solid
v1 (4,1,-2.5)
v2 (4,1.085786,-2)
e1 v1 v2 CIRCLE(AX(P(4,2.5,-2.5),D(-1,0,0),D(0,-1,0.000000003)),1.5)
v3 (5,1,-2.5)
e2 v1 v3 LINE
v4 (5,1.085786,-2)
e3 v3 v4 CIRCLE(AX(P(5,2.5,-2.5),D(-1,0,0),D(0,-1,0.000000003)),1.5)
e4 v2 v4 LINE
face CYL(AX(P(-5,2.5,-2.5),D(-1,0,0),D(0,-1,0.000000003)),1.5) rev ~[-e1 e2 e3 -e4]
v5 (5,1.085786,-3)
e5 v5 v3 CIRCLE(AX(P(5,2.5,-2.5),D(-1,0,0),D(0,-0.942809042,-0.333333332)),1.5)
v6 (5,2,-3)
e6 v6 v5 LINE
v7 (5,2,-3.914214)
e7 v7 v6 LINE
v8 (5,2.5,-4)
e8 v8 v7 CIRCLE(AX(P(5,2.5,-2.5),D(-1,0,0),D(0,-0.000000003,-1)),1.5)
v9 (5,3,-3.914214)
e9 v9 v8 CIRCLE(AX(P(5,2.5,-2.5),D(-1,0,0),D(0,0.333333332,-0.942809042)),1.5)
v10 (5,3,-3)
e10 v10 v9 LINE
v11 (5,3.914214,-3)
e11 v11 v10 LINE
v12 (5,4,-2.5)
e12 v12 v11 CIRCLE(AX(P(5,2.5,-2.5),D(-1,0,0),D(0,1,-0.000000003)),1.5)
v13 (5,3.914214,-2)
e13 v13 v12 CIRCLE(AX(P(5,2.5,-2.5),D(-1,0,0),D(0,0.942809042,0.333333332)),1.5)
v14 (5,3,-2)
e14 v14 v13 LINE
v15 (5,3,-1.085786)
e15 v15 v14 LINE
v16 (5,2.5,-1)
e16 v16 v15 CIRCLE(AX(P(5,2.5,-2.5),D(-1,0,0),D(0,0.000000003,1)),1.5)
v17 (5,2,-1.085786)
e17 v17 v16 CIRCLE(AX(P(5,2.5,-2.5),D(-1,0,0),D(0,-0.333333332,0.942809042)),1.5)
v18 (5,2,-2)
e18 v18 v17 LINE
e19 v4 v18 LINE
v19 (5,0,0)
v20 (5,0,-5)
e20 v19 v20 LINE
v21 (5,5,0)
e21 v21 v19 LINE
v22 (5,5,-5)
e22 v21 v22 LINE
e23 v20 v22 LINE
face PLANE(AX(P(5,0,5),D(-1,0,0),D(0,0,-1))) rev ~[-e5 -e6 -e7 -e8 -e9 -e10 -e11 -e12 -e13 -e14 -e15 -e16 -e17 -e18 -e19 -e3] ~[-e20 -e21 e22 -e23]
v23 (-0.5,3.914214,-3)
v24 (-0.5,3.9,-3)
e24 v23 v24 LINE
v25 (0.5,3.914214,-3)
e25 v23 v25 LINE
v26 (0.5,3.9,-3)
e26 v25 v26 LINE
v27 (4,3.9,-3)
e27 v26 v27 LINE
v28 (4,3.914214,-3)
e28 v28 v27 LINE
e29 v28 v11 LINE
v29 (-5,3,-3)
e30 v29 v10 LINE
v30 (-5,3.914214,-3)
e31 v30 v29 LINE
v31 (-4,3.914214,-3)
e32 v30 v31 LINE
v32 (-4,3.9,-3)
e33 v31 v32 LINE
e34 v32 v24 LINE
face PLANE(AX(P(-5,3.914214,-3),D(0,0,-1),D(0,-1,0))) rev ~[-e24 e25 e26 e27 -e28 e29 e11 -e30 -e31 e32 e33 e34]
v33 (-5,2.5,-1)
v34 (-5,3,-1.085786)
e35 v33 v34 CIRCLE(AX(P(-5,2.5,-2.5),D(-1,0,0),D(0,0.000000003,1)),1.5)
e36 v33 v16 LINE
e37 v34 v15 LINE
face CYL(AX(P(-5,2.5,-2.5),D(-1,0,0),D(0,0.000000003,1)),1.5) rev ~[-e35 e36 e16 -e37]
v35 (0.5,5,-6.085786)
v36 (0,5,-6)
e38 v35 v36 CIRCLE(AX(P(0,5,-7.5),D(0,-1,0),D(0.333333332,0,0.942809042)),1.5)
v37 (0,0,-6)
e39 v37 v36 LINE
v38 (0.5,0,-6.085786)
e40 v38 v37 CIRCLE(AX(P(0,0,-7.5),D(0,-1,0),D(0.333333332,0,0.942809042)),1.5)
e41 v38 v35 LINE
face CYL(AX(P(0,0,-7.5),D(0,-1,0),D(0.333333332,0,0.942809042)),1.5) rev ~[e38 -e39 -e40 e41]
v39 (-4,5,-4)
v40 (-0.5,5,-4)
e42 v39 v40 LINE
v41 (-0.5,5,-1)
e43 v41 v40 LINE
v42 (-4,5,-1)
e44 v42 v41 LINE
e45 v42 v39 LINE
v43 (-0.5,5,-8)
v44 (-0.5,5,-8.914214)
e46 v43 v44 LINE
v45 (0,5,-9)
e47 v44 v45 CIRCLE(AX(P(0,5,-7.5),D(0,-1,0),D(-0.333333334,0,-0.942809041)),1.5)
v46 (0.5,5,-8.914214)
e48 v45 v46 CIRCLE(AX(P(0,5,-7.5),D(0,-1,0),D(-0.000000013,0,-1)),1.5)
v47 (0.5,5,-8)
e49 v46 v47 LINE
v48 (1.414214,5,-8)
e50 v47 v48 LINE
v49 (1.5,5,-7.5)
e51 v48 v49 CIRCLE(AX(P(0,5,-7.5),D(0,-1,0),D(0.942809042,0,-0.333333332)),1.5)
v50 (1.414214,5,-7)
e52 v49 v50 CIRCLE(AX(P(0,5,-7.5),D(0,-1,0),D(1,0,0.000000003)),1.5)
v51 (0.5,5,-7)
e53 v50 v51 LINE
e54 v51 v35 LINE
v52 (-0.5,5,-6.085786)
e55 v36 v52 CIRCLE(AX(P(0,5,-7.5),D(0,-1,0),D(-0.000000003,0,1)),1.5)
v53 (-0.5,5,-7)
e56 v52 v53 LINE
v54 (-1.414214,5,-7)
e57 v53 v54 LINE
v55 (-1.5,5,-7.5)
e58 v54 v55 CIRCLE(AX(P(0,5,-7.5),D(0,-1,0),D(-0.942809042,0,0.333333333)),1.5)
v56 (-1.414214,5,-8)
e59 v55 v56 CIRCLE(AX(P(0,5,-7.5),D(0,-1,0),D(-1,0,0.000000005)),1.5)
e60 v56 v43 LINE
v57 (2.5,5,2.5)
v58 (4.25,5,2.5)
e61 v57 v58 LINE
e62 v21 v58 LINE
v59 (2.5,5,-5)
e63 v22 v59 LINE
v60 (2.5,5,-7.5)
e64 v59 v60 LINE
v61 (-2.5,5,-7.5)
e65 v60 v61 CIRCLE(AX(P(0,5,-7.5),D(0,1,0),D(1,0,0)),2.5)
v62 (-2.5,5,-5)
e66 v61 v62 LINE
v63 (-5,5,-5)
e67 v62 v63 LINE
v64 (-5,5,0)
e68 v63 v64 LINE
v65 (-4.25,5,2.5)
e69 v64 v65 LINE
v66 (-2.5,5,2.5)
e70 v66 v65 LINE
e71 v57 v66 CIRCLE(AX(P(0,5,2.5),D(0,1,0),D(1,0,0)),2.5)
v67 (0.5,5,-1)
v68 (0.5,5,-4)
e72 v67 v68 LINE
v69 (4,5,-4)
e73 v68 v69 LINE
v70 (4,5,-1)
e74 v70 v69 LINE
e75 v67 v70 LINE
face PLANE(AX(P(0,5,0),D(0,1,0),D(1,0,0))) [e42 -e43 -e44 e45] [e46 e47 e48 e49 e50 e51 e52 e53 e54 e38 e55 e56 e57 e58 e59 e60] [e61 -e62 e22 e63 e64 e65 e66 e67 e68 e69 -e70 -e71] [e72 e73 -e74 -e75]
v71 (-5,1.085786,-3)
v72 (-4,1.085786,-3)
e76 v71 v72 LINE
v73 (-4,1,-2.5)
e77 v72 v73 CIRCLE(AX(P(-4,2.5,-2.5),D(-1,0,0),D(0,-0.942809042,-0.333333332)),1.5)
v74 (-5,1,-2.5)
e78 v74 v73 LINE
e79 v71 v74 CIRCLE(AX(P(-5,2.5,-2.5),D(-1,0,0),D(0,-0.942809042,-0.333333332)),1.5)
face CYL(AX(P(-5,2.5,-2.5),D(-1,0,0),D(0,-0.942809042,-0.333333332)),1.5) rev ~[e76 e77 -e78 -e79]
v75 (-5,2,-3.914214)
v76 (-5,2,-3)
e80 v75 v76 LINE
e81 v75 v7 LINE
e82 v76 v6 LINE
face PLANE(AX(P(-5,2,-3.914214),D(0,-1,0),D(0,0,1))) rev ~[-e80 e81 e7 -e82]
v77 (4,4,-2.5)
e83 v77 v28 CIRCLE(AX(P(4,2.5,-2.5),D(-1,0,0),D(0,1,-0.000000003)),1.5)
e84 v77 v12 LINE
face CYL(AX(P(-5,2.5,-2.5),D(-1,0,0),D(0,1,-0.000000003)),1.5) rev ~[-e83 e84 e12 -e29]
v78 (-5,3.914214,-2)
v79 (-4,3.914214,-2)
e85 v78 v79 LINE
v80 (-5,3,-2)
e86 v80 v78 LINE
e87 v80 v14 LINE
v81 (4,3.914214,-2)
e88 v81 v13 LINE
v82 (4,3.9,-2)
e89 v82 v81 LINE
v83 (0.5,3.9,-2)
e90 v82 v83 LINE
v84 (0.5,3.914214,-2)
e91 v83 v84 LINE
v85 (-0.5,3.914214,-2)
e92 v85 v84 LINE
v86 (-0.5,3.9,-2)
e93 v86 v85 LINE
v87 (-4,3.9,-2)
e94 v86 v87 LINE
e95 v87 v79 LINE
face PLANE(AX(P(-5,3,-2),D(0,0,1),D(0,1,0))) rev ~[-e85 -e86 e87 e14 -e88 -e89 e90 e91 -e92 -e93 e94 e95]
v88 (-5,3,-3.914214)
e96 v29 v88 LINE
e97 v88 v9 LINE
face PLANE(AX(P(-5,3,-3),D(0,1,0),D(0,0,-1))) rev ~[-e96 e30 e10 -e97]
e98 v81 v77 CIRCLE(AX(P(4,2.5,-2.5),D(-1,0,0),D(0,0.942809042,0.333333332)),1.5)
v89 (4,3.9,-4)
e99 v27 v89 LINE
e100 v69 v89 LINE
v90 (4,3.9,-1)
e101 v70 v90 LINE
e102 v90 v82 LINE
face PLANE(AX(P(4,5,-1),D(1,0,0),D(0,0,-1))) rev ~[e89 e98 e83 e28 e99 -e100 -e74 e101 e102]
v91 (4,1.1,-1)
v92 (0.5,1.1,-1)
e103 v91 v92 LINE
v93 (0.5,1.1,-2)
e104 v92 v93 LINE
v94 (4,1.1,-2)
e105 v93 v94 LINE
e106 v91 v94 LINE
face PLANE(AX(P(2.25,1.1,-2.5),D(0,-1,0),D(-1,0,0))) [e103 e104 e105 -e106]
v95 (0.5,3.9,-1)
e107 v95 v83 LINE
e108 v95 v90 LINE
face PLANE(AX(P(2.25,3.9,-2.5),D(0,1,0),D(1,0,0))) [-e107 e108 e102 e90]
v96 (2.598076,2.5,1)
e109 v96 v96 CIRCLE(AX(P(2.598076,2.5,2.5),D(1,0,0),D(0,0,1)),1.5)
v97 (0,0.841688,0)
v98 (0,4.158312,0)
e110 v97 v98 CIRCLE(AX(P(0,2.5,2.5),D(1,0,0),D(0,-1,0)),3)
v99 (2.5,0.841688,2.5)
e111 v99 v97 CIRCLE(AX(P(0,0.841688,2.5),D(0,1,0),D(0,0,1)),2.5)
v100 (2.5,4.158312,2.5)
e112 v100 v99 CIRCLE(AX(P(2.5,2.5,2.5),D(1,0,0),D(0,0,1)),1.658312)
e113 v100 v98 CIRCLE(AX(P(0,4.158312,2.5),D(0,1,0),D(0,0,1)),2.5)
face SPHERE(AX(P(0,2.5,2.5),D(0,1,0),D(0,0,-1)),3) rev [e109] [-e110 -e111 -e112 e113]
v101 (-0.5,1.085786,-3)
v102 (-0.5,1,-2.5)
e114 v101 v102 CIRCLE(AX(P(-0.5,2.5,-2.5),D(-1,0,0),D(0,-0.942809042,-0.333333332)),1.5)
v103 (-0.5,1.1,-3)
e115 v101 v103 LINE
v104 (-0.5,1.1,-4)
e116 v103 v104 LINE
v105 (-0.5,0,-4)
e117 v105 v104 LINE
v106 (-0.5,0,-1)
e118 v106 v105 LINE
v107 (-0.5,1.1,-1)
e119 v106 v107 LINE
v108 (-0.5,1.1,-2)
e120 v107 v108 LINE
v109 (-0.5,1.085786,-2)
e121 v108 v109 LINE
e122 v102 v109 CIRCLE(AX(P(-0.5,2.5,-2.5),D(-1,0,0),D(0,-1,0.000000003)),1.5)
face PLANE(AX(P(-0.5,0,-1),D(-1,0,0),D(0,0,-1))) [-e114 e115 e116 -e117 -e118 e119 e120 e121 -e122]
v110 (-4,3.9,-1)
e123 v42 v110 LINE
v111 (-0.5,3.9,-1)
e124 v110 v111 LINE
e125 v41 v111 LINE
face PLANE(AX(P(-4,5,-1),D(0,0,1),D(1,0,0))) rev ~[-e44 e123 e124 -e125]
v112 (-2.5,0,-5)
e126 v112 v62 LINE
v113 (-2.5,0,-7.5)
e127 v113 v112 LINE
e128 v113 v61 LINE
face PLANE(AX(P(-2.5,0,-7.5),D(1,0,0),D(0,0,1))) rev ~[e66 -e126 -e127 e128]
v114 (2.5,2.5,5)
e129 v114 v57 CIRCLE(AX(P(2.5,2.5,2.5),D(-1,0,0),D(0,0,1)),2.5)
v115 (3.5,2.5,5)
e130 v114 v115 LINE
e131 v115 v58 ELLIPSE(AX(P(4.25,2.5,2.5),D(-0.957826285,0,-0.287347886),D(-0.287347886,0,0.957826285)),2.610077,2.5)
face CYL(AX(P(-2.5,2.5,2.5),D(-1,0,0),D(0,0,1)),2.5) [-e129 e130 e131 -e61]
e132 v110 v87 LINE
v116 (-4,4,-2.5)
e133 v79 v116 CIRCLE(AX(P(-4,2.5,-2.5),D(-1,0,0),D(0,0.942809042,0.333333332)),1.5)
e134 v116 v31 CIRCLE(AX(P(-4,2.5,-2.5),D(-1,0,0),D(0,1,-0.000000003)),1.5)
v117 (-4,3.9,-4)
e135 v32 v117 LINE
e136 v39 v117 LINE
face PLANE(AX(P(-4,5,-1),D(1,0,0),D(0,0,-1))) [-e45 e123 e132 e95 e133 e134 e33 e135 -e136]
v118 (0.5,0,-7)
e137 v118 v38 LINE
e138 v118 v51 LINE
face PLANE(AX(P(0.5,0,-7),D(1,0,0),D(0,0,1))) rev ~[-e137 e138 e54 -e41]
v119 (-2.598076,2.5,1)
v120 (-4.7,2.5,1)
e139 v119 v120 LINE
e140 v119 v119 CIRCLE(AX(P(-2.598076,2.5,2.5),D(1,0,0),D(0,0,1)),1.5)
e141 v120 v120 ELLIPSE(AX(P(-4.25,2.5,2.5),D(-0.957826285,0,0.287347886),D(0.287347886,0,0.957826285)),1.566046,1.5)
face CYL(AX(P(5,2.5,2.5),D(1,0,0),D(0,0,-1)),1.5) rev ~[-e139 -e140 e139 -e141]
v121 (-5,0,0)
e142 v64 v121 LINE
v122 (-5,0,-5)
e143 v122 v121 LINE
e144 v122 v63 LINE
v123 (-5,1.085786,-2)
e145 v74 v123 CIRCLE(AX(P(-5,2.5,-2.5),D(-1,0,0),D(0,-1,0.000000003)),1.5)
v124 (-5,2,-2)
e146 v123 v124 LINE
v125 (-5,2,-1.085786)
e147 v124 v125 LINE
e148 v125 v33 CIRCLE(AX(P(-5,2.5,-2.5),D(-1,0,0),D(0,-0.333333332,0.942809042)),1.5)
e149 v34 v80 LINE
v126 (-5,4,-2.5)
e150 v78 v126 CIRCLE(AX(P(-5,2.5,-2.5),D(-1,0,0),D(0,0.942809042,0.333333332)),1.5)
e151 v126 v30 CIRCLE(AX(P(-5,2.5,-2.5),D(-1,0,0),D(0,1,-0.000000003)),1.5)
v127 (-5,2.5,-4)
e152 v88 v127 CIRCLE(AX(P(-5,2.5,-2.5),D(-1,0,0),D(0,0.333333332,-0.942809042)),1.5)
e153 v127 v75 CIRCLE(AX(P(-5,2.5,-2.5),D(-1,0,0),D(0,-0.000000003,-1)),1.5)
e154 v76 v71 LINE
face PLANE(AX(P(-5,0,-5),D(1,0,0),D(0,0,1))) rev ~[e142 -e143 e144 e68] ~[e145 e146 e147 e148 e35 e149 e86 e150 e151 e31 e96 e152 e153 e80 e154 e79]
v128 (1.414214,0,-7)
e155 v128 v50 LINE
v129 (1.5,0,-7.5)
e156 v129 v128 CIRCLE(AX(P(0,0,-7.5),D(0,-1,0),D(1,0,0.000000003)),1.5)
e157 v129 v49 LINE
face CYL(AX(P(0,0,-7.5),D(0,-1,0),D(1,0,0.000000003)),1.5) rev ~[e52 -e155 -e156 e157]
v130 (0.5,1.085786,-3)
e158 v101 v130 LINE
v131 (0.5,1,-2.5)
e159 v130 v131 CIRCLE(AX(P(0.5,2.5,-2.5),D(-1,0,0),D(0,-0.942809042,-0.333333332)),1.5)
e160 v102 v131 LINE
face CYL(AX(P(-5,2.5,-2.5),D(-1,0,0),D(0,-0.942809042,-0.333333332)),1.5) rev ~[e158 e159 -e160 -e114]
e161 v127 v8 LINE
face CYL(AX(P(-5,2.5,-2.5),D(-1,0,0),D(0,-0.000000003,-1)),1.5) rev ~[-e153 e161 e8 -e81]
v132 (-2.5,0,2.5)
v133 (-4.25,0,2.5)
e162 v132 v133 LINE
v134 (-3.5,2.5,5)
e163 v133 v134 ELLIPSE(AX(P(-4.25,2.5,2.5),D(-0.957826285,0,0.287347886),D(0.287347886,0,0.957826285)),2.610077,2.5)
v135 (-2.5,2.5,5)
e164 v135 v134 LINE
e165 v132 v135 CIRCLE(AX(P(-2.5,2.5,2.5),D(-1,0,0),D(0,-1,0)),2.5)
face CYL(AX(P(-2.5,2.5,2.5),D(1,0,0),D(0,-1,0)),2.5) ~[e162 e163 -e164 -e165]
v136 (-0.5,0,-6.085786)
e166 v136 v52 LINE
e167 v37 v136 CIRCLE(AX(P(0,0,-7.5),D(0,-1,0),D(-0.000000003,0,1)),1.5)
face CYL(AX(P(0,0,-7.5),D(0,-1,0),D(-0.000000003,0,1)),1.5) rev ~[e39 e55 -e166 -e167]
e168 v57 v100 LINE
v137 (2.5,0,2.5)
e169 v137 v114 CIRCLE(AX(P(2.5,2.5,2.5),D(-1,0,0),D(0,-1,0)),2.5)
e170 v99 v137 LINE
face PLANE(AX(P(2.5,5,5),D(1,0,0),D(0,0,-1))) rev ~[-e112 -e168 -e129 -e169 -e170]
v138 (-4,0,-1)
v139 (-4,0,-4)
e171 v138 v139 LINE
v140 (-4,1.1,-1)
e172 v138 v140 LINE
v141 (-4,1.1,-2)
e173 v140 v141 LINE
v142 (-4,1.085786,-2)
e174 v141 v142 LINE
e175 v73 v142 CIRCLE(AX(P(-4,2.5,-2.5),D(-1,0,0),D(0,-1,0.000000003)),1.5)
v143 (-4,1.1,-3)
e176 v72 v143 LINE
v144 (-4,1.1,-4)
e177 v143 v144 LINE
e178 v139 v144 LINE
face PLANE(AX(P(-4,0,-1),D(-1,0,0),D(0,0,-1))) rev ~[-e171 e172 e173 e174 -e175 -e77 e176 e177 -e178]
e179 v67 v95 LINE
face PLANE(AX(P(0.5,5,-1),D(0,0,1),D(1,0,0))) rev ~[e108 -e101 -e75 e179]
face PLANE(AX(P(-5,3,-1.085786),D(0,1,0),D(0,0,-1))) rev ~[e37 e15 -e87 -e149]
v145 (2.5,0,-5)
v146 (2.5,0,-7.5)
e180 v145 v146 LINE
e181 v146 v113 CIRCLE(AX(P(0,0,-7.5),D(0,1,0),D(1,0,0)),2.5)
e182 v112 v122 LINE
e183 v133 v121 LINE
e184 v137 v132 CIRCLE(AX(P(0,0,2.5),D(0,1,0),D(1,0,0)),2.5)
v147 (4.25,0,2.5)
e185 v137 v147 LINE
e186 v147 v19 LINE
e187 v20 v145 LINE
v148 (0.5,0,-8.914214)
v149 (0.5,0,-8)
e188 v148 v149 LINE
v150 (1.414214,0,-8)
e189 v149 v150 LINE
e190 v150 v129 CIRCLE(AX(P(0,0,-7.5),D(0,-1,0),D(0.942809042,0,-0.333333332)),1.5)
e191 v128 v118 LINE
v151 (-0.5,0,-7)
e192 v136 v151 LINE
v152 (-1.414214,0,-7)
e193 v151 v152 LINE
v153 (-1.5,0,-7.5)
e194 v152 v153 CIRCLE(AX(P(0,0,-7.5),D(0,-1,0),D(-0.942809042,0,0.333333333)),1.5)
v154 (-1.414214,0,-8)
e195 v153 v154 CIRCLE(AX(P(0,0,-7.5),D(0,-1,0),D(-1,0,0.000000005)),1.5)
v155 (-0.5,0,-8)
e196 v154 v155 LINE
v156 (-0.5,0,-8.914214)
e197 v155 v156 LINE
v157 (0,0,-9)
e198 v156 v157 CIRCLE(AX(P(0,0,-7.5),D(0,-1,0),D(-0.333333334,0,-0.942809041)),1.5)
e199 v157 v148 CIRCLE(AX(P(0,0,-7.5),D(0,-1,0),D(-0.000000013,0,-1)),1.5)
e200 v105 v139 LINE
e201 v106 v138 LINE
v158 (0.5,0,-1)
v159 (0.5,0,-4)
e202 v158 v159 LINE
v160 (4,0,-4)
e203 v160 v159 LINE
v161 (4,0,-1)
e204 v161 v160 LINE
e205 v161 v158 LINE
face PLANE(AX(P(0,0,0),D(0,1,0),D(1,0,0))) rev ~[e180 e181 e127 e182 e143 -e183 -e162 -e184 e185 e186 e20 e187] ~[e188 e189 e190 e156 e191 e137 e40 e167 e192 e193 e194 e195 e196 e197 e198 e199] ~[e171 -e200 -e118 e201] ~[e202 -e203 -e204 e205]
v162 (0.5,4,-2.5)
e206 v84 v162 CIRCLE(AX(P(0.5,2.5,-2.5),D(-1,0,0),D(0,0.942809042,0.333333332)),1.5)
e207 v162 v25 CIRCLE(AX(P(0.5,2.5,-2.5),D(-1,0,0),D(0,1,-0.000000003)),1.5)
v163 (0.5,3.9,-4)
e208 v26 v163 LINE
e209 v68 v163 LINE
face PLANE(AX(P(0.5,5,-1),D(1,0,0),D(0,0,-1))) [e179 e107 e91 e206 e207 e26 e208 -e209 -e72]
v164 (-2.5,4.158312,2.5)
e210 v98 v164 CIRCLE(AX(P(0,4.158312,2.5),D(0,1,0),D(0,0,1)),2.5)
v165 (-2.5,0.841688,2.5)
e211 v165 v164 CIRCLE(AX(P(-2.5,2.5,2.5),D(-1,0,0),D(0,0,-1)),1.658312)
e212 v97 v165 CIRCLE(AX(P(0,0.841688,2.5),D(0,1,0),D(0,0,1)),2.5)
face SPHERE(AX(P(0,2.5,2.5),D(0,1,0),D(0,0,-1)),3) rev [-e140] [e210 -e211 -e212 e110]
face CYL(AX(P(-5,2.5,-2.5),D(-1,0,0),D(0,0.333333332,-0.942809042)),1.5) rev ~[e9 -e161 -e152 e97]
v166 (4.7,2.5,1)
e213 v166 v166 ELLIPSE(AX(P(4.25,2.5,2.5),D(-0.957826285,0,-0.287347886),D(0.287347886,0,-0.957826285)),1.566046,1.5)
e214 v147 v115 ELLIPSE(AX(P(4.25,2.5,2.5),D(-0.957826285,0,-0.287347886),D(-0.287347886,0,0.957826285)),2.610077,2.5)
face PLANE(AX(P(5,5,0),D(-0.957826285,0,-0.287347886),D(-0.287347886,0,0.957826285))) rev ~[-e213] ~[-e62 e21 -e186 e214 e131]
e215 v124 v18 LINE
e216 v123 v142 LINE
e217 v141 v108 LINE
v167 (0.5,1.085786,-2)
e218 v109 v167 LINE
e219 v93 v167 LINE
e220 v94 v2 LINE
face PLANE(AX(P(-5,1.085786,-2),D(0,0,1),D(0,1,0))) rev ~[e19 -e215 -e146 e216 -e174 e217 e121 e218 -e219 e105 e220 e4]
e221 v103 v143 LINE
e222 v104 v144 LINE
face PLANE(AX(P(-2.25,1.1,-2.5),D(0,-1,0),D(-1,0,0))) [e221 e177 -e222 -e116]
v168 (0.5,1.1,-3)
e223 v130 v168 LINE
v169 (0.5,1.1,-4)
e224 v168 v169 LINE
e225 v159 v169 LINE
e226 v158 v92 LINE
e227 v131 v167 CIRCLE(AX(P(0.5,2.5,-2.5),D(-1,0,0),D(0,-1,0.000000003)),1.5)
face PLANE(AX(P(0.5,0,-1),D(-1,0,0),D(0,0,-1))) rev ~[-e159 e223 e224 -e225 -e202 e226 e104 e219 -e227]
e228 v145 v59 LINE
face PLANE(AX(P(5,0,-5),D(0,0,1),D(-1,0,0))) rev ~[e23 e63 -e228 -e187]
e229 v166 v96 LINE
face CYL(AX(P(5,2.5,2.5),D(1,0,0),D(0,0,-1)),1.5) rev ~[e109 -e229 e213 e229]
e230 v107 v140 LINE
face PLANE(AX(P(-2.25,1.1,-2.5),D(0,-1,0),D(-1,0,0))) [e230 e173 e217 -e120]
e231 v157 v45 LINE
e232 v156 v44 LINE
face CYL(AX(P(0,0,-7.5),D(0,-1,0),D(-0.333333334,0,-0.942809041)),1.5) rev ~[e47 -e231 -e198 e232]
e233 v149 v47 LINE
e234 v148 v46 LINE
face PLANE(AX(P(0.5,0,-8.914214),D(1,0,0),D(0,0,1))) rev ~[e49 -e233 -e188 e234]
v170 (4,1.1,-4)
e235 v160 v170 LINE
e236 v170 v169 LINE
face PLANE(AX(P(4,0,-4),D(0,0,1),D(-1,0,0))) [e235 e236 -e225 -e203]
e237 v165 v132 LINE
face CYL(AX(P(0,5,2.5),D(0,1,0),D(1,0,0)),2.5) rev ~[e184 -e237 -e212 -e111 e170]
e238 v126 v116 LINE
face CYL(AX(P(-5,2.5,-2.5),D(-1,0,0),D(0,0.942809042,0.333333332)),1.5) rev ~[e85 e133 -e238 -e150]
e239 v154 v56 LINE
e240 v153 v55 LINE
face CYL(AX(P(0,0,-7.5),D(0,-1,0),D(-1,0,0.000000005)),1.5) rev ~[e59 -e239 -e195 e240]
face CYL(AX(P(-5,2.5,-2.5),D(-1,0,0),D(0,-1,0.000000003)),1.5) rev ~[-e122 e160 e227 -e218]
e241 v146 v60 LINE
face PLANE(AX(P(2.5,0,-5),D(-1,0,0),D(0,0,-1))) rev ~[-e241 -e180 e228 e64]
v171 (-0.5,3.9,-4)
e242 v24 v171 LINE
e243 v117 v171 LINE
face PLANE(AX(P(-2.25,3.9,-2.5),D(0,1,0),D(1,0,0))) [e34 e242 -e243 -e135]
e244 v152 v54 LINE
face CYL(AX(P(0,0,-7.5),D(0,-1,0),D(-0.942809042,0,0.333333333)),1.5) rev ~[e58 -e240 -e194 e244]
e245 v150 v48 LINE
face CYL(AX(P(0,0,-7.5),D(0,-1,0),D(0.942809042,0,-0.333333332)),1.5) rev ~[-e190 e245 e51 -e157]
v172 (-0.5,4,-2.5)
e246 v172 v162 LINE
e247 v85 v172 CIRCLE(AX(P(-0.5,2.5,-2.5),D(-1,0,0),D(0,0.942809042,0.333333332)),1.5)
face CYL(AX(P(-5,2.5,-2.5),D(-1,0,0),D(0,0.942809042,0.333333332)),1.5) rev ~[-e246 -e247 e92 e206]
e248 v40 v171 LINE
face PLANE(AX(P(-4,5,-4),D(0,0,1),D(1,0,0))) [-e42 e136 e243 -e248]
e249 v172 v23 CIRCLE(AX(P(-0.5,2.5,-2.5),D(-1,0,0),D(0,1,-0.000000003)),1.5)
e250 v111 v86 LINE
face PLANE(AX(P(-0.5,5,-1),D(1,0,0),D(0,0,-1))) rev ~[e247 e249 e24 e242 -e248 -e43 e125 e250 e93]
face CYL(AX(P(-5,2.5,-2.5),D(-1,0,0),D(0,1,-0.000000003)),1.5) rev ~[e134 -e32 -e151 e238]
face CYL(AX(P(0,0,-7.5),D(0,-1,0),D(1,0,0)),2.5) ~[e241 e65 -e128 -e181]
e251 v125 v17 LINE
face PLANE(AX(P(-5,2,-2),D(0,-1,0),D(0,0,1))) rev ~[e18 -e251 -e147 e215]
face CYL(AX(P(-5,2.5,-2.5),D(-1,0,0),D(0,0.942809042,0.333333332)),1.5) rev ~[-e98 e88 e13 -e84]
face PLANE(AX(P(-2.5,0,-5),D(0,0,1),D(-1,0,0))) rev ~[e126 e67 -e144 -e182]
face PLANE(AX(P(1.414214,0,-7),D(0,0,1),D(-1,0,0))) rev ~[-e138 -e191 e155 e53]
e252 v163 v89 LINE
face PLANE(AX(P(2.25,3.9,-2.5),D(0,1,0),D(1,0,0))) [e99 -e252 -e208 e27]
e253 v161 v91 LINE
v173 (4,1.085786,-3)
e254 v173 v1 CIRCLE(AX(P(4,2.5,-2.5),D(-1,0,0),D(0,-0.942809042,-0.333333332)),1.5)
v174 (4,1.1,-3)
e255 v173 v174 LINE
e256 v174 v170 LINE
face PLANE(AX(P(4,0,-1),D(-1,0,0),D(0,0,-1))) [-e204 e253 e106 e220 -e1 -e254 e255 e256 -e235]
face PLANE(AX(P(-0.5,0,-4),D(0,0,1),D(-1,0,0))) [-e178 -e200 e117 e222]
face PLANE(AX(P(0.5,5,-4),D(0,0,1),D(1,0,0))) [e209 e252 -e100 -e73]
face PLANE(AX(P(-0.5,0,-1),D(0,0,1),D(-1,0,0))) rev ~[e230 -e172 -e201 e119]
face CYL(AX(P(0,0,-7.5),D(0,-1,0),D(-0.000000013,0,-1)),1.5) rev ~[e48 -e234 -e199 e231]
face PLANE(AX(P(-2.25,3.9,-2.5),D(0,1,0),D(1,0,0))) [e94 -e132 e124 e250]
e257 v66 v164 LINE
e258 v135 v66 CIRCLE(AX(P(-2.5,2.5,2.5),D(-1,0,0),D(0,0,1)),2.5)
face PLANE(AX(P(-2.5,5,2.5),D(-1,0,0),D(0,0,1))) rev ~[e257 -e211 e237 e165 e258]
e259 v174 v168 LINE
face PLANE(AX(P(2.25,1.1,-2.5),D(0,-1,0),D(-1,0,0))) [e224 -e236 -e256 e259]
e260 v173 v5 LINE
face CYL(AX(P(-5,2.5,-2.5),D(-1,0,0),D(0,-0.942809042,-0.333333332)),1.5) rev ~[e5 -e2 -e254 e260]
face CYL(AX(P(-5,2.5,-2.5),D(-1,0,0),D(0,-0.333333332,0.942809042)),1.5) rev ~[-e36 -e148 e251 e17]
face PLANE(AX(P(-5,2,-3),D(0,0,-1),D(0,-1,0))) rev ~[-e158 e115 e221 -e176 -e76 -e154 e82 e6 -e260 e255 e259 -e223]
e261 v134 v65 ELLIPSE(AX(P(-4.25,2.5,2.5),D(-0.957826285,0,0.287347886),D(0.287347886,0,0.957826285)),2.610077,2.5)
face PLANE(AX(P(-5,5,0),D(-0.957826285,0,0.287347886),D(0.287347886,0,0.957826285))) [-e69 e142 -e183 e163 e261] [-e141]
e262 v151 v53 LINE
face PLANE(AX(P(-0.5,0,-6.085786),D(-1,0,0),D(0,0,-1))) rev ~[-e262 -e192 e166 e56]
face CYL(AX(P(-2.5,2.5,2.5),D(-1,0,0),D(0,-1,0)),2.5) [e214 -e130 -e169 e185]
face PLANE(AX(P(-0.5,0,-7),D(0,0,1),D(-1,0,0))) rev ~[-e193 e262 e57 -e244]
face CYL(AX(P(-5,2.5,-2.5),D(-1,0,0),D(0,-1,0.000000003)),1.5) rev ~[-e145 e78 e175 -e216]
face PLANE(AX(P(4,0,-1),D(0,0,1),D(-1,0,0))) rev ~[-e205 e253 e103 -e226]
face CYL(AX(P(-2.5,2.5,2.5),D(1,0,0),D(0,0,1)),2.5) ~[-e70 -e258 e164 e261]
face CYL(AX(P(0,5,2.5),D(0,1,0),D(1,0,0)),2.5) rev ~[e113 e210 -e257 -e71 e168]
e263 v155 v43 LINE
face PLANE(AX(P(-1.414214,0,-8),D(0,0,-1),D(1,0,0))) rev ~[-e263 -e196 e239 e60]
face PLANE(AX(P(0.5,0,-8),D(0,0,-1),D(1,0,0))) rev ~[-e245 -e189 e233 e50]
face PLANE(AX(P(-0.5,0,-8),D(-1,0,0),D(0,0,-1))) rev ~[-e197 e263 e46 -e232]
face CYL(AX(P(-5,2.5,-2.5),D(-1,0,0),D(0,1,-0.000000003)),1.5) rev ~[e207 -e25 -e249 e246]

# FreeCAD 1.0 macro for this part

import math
import FreeCAD as App
import Part
import Sketcher

V = App.Vector


def add_polygon(sketch, points):
    """Adds a closed chain of lines whose ends are joined by coincident constraints."""
    first, n = sketch.GeometryCount, len(points)
    for a, b in zip(points, points[1:] + points[:1]):
        sketch.addGeometry(Part.LineSegment(App.Vector(*a, 0), App.Vector(*b, 0)), False)
    for i in range(n):
        sketch.addConstraint(Sketcher.Constraint("Coincident", first + i, 2, first + (i + 1) % n, 1))

doc = App.newDocument("Part")
body = doc.addObject("PartDesign::Body", "Body")

# Sketch on XZ plane
sketch1 = doc.addObject("Sketcher::SketchObject", "Sketch")
body.addObject(sketch1)
sketch1.AttachmentSupport = (doc.XZ_Plane, [""])
sketch1.MapMode = "FlatFace"
sketch1.addGeometry(Part.LineSegment(V(-5, -5, 0), V(-5, 5, 0)), False)
sketch1.addGeometry(Part.LineSegment(V(-5, 5, 0), V(5, 5, 0)), False)
sketch1.addGeometry(Part.LineSegment(V(5, 5, 0), V(5, -5, 0)), False)
sketch1.addGeometry(Part.LineSegment(V(5, -5, 0), V(2.5, -5, 0)), False)
sketch1.addGeometry(Part.LineSegment(V(2.5, -5, 0), V(2.5, -7.5, 0)), False)
sketch1.addGeometry(Part.ArcOfCircle(Part.Circle(V(0, -7.5, 0), V(0, 0, 1), 2.5), math.radians(180), math.radians(360)), False)
sketch1.addGeometry(Part.LineSegment(V(-2.5, -7.5, 0), V(-2.5, -5, 0)), False)
sketch1.addGeometry(Part.LineSegment(V(-2.5, -5, 0), V(-5, -5, 0)), False)
sketch1.addGeometry(Part.LineSegment(V(-1.414214, -8, 0), V(-0.5, -8, 0)), False)
sketch1.addGeometry(Part.LineSegment(V(-0.5, -8, 0), V(-0.5, -8.914214, 0)), False)
sketch1.addGeometry(Part.ArcOfCircle(Part.Circle(V(0, -7.5, 0), V(0, 0, 1), 1.5), math.radians(-109.471221), math.radians(-90.000001)), False)
sketch1.addGeometry(Part.ArcOfCircle(Part.Circle(V(0, -7.5, 0), V(0, 0, 1), 1.5), math.radians(-90.000001), math.radians(-70.528779)), False)
sketch1.addGeometry(Part.LineSegment(V(0.5, -8.914214, 0), V(0.5, -8, 0)), False)
sketch1.addGeometry(Part.LineSegment(V(0.5, -8, 0), V(1.414214, -8, 0)), False)
sketch1.addGeometry(Part.ArcOfCircle(Part.Circle(V(0, -7.5, 0), V(0, 0, 1), 1.5), math.radians(-19.471221), math.radians(0)), False)
sketch1.addGeometry(Part.ArcOfCircle(Part.Circle(V(0, -7.5, 0), V(0, 0, 1), 1.5), math.radians(0), math.radians(19.471221)), False)
sketch1.addGeometry(Part.LineSegment(V(1.414214, -7, 0), V(0.5, -7, 0)), False)
sketch1.addGeometry(Part.LineSegment(V(0.5, -7, 0), V(0.5, -6.085786, 0)), False)
sketch1.addGeometry(Part.ArcOfCircle(Part.Circle(V(0, -7.5, 0), V(0, 0, 1), 1.5), math.radians(70.528779), math.radians(90)), False)
sketch1.addGeometry(Part.ArcOfCircle(Part.Circle(V(0, -7.5, 0), V(0, 0, 1), 1.5), math.radians(90), math.radians(109.471221)), False)
sketch1.addGeometry(Part.LineSegment(V(-0.5, -6.085786, 0), V(-0.5, -7, 0)), False)
sketch1.addGeometry(Part.LineSegment(V(-0.5, -7, 0), V(-1.414214, -7, 0)), False)
sketch1.addGeometry(Part.ArcOfCircle(Part.Circle(V(0, -7.5, 0), V(0, 0, 1), 1.5), math.radians(160.528779), math.radians(180)), False)
sketch1.addGeometry(Part.ArcOfCircle(Part.Circle(V(0, -7.5, 0), V(0, 0, 1), 1.5), math.radians(180), math.radians(199.471221)), False)
sketch1.addConstraint(Sketcher.Constraint("Coincident", 0, 2, 1, 1))
sketch1.addConstraint(Sketcher.Constraint("Coincident", 1, 2, 2, 1))
sketch1.addConstraint(Sketcher.Constraint("Coincident", 2, 2, 3, 1))
sketch1.addConstraint(Sketcher.Constraint("Coincident", 3, 2, 4, 1))
sketch1.addConstraint(Sketcher.Constraint("Tangent", 4, 2, 5, 2))
sketch1.addConstraint(Sketcher.Constraint("Tangent", 5, 1, 6, 1))
sketch1.addConstraint(Sketcher.Constraint("Coincident", 6, 2, 7, 1))
sketch1.addConstraint(Sketcher.Constraint("Coincident", 7, 2, 0, 1))
sketch1.addConstraint(Sketcher.Constraint("Coincident", 8, 2, 9, 1))
sketch1.addConstraint(Sketcher.Constraint("Coincident", 9, 2, 10, 1))
sketch1.addConstraint(Sketcher.Constraint("Tangent", 10, 2, 11, 1))
sketch1.addConstraint(Sketcher.Constraint("Coincident", 11, 2, 12, 1))
sketch1.addConstraint(Sketcher.Constraint("Coincident", 12, 2, 13, 1))
sketch1.addConstraint(Sketcher.Constraint("Coincident", 13, 2, 14, 1))
sketch1.addConstraint(Sketcher.Constraint("Tangent", 14, 2, 15, 1))
sketch1.addConstraint(Sketcher.Constraint("Coincident", 15, 2, 16, 1))
sketch1.addConstraint(Sketcher.Constraint("Coincident", 16, 2, 17, 1))
sketch1.addConstraint(Sketcher.Constraint("Coincident", 17, 2, 18, 1))
sketch1.addConstraint(Sketcher.Constraint("Tangent", 18, 2, 19, 1))
sketch1.addConstraint(Sketcher.Constraint("Coincident", 19, 2, 20, 1))
sketch1.addConstraint(Sketcher.Constraint("Coincident", 20, 2, 21, 1))
sketch1.addConstraint(Sketcher.Constraint("Coincident", 21, 2, 22, 1))
sketch1.addConstraint(Sketcher.Constraint("Tangent", 22, 2, 23, 1))
sketch1.addConstraint(Sketcher.Constraint("Coincident", 23, 2, 8, 1))
sketch1.addConstraint(Sketcher.Constraint("Vertical", 0))
sketch1.addConstraint(Sketcher.Constraint("Horizontal", 1))
sketch1.addConstraint(Sketcher.Constraint("Vertical", 2))
sketch1.addConstraint(Sketcher.Constraint("Horizontal", 3))
sketch1.addConstraint(Sketcher.Constraint("Vertical", 4))
sketch1.addConstraint(Sketcher.Constraint("Vertical", 6))
sketch1.addConstraint(Sketcher.Constraint("Horizontal", 7))
sketch1.addConstraint(Sketcher.Constraint("Horizontal", 8))
sketch1.addConstraint(Sketcher.Constraint("Vertical", 9))
sketch1.addConstraint(Sketcher.Constraint("Vertical", 12))
sketch1.addConstraint(Sketcher.Constraint("Horizontal", 13))
sketch1.addConstraint(Sketcher.Constraint("Horizontal", 16))
sketch1.addConstraint(Sketcher.Constraint("Vertical", 17))
sketch1.addConstraint(Sketcher.Constraint("Vertical", 20))
sketch1.addConstraint(Sketcher.Constraint("Horizontal", 21))
sketch1.addConstraint(Sketcher.Constraint("Coincident", 10, 3, 5, 3))
sketch1.addConstraint(Sketcher.Constraint("Coincident", 14, 3, 5, 3))
sketch1.addConstraint(Sketcher.Constraint("Coincident", 18, 3, 5, 3))
sketch1.addConstraint(Sketcher.Constraint("Coincident", 22, 3, 5, 3))
sketch1.addConstraint(Sketcher.Constraint("Equal", 10, 11))
sketch1.addConstraint(Sketcher.Constraint("Equal", 11, 14))
sketch1.addConstraint(Sketcher.Constraint("Equal", 14, 15))
sketch1.addConstraint(Sketcher.Constraint("Equal", 15, 18))
sketch1.addConstraint(Sketcher.Constraint("Equal", 18, 19))
sketch1.addConstraint(Sketcher.Constraint("Equal", 19, 22))
sketch1.addConstraint(Sketcher.Constraint("Equal", 22, 23))
sketch1.addConstraint(Sketcher.Constraint("Symmetric", 0, 2, 2, 2, -1, 1))
sketch1.addConstraint(Sketcher.Constraint("Symmetric", 3, 2, 6, 2, -2))
sketch1.addConstraint(Sketcher.Constraint("Symmetric", 8, 2, 12, 2, -2))
sketch1.addConstraint(Sketcher.Constraint("Symmetric", 16, 2, 20, 2, -2))
sketch1.addConstraint(Sketcher.Constraint("PointOnObject", 10, 2, -2))
sketch1.addConstraint(Sketcher.Constraint("PointOnObject", 18, 2, -2))
sketch1.addConstraint(Sketcher.Constraint("Horizontal", 5, 1, 14, 2))
sketch1.addConstraint(Sketcher.Constraint("Horizontal", 14, 2, 22, 2))
sketch1.addConstraint(Sketcher.Constraint("Vertical", 13, 2, 15, 2))
sketch1.addConstraint(Sketcher.Constraint("Vertical", 12, 2, 16, 2))
sketch1.addConstraint(Sketcher.Constraint("Equal", 1, 0))
sketch1.addConstraint(Sketcher.Constraint("Equal", 7, 4))
sketch1.addConstraint(Sketcher.Constraint("Equal", 21, 9))
sketch1.addConstraint(Sketcher.Constraint("Radius", 5, 2.5))
sketch1.addConstraint(Sketcher.Constraint("Radius", 10, 1.5))
sketch1.addConstraint(Sketcher.Constraint("DistanceX", 1, 1, 1, 2, 10.0))
sketch1.addConstraint(Sketcher.Constraint("DistanceY", 8, 2, -1, 1, 8.0))
pad1 = doc.addObject("PartDesign::Pad", "Pad")
body.addObject(pad1)
pad1.Profile = sketch1
pad1.Length = 5
pad1.Reversed = True

# Sketch on YZ plane
sketch2 = doc.addObject("Sketcher::SketchObject", "Sketch001")
body.addObject(sketch2)
sketch2.AttachmentSupport = (doc.YZ_Plane, [""])
sketch2.MapMode = "FlatFace"
sketch2.addGeometry(Part.LineSegment(V(5.5, 2.5, 0), V(-0.5, 2.5, 0)), False)
sketch2.addGeometry(Part.ArcOfCircle(Part.Circle(V(2.5, 2.5, 0), V(0, 0, 1), 3), math.radians(180), math.radians(360)), False)
sketch2.addGeometry(Part.LineSegment(V(5.5, 2.5, 0), V(-0.5, 2.5, 0)), True)  # axis
sketch2.addConstraint(Sketcher.Constraint("Coincident", 0, 1, 1, 2))
sketch2.addConstraint(Sketcher.Constraint("Coincident", 1, 1, 0, 2))
sketch2.addConstraint(Sketcher.Constraint("Horizontal", 0))
sketch2.addConstraint(Sketcher.Constraint("Horizontal", 2))
sketch2.addConstraint(Sketcher.Constraint("Coincident", 2, 1, 0, 1))
sketch2.addConstraint(Sketcher.Constraint("Horizontal", 1, 3, 0, 1))
sketch2.addConstraint(Sketcher.Constraint("Equal", 0, 2))
sketch2.addConstraint(Sketcher.Constraint("Radius", 1, 3.0))
sketch2.addConstraint(Sketcher.Constraint("DistanceX", -1, 1, 1, 3, 2.5))
sketch2.addConstraint(Sketcher.Constraint("DistanceY", -1, 1, 1, 3, 2.5))
groove = doc.addObject("PartDesign::Groove", "Groove")
body.addObject(groove)
groove.Profile = sketch2
groove.ReferenceAxis = (sketch2, ["Axis0"])
groove.Angle = 360

# Sketch on YZ plane
sketch3 = doc.addObject("Sketcher::SketchObject", "Sketch002")
body.addObject(sketch3)
sketch3.AttachmentSupport = (doc.YZ_Plane, [""])
sketch3.MapMode = "FlatFace"
sketch3.AttachmentOffset = App.Placement(V(0, 0, 5), App.Rotation())
sketch3.addGeometry(Part.Circle(V(2.5, 2.5, 0), V(0, 0, 1), 1.5), False)
sketch3.addConstraint(Sketcher.Constraint("Diameter", 0, 3.0))
sketch3.addConstraint(Sketcher.Constraint("DistanceX", -1, 1, 0, 3, 2.5))
sketch3.addConstraint(Sketcher.Constraint("DistanceY", -1, 1, 0, 3, 2.5))
pocket1 = doc.addObject("PartDesign::Pocket", "Pocket")
body.addObject(pocket1)
pocket1.Profile = sketch3
pocket1.Length = 10

# Sketch on XZ plane
sketch4 = doc.addObject("Sketcher::SketchObject", "Sketch003")
body.addObject(sketch4)
sketch4.AttachmentSupport = (doc.XZ_Plane, [""])
sketch4.MapMode = "FlatFace"
sketch4.AttachmentOffset = App.Placement(V(0, 0, -5), App.Rotation())
add_polygon(sketch4, [(-3.5, 5), (-5, 0), (-5, 5)])  # lines 0-2
sketch4.addConstraint(Sketcher.Constraint("Vertical", 1))
sketch4.addConstraint(Sketcher.Constraint("Horizontal", 2))
sketch4.addConstraint(Sketcher.Constraint("PointOnObject", 0, 2, -1))
sketch4.addConstraint(Sketcher.Constraint("DistanceY", 1, 1, 1, 2, 5.0))
sketch4.addConstraint(Sketcher.Constraint("DistanceX", 2, 1, 2, 2, 1.5))
sketch4.addConstraint(Sketcher.Constraint("DistanceX", 0, 2, -1, 1, 5.0))
pocket2 = doc.addObject("PartDesign::Pocket", "Pocket001")
body.addObject(pocket2)
pocket2.Profile = sketch4
pocket2.Type = "UpToFirst"
pocket2.Reversed = True

# Sketch on XZ plane
sketch5 = doc.addObject("Sketcher::SketchObject", "Sketch004")
body.addObject(sketch5)
sketch5.AttachmentSupport = (doc.XZ_Plane, [""])
sketch5.MapMode = "FlatFace"
sketch5.AttachmentOffset = App.Placement(V(0, 0, -5), App.Rotation())
add_polygon(sketch5, [(5, 0), (3.5, 5), (5, 5)])  # lines 0-2
sketch5.addConstraint(Sketcher.Constraint("Horizontal", 1))
sketch5.addConstraint(Sketcher.Constraint("Vertical", 2))
sketch5.addConstraint(Sketcher.Constraint("PointOnObject", 2, 2, -1))
sketch5.addConstraint(Sketcher.Constraint("DistanceY", 2, 2, 2, 1, 5.0))
sketch5.addConstraint(Sketcher.Constraint("DistanceX", 1, 1, 1, 2, 1.5))
sketch5.addConstraint(Sketcher.Constraint("DistanceX", -1, 1, 1, 2, 5.0))
pocket3 = doc.addObject("PartDesign::Pocket", "Pocket002")
body.addObject(pocket3)
pocket3.Profile = sketch5
pocket3.Type = "UpToFirst"
pocket3.Reversed = True

# Sketch on XZ plane
sketch6 = doc.addObject("Sketcher::SketchObject", "Sketch005")
body.addObject(sketch6)
sketch6.AttachmentSupport = (doc.XZ_Plane, [""])
sketch6.MapMode = "FlatFace"
sketch6.AttachmentOffset = App.Placement(V(0, 0, -5), App.Rotation())
sketch6.addGeometry(Part.LineSegment(V(2.5, 5, 0), V(2.5, 2.5, 0)), False)
sketch6.addGeometry(Part.ArcOfCircle(Part.Circle(V(0, 2.5, 0), V(0, 0, 1), 2.5), math.radians(180), math.radians(360)), False)
sketch6.addGeometry(Part.LineSegment(V(-2.5, 2.5, 0), V(-2.5, 5, 0)), False)
sketch6.addGeometry(Part.LineSegment(V(-2.5, 5, 0), V(2.5, 5, 0)), False)
sketch6.addGeometry(Part.Circle(V(0, 2.5, 0), V(0, 0, 1), 1.658312), False)
sketch6.addConstraint(Sketcher.Constraint("Tangent", 0, 2, 1, 2))
sketch6.addConstraint(Sketcher.Constraint("Tangent", 1, 1, 2, 1))
sketch6.addConstraint(Sketcher.Constraint("Coincident", 2, 2, 3, 1))
sketch6.addConstraint(Sketcher.Constraint("Coincident", 3, 2, 0, 1))
sketch6.addConstraint(Sketcher.Constraint("Vertical", 0))
sketch6.addConstraint(Sketcher.Constraint("Vertical", 2))
sketch6.addConstraint(Sketcher.Constraint("Horizontal", 3))
sketch6.addConstraint(Sketcher.Constraint("Coincident", 4, 3, 1, 3))
sketch6.addConstraint(Sketcher.Constraint("PointOnObject", 1, 3, -2))
sketch6.addConstraint(Sketcher.Constraint("Radius", 1, 2.5))
sketch6.addConstraint(Sketcher.Constraint("DistanceY", 0, 2, 0, 1, 2.5))
sketch6.addConstraint(Sketcher.Constraint("DistanceY", -1, 1, 2, 2, 5.0))
sketch6.addConstraint(Sketcher.Constraint("Diameter", 4, 3.316625))
pocket4 = doc.addObject("PartDesign::Pocket", "Pocket003")
body.addObject(pocket4)
pocket4.Profile = sketch6
pocket4.Length = 10
pocket4.Reversed = True

# Sketch on YZ plane
sketch7 = doc.addObject("Sketcher::SketchObject", "Sketch006")
body.addObject(sketch7)
sketch7.AttachmentSupport = (doc.YZ_Plane, [""])
sketch7.MapMode = "FlatFace"
sketch7.AttachmentOffset = App.Placement(V(0, 0, -2.5), App.Rotation())
sketch7.addGeometry(Part.ArcOfCircle(Part.Circle(V(2.5, 2.5, 0), V(0, 0, 1), 2.5), math.radians(0), math.radians(90)), False)
sketch7.addGeometry(Part.LineSegment(V(5, 2.5, 0), V(5, 5, 0)), False)
sketch7.addGeometry(Part.LineSegment(V(5, 5, 0), V(2.5, 5, 0)), False)
sketch7.addGeometry(Part.LineSegment(V(0, 5, 0), V(0, 2.5, 0)), False)
sketch7.addGeometry(Part.ArcOfCircle(Part.Circle(V(2.5, 2.5, 0), V(0, 0, 1), 2.5), math.radians(90), math.radians(180)), False)
sketch7.addGeometry(Part.LineSegment(V(2.5, 5, 0), V(0, 5, 0)), False)
sketch7.addConstraint(Sketcher.Constraint("Tangent", 0, 1, 1, 1))
sketch7.addConstraint(Sketcher.Constraint("Coincident", 1, 2, 2, 1))
sketch7.addConstraint(Sketcher.Constraint("Tangent", 2, 2, 0, 2))
sketch7.addConstraint(Sketcher.Constraint("Tangent", 3, 2, 4, 2))
sketch7.addConstraint(Sketcher.Constraint("Tangent", 4, 1, 5, 1))
sketch7.addConstraint(Sketcher.Constraint("Coincident", 5, 2, 3, 1))
sketch7.addConstraint(Sketcher.Constraint("Vertical", 1))
sketch7.addConstraint(Sketcher.Constraint("Horizontal", 2))
sketch7.addConstraint(Sketcher.Constraint("Vertical", 3))
sketch7.addConstraint(Sketcher.Constraint("Horizontal", 5))
sketch7.addConstraint(Sketcher.Constraint("Coincident", 4, 3, 0, 3))
sketch7.addConstraint(Sketcher.Constraint("Equal", 0, 4))
sketch7.addConstraint(Sketcher.Constraint("PointOnObject", 3, 2, -2))
sketch7.addConstraint(Sketcher.Constraint("Radius", 0, 2.5))
sketch7.addConstraint(Sketcher.Constraint("DistanceY", -1, 1, 1, 2, 5.0))
pocket5 = doc.addObject("PartDesign::Pocket", "Pocket004")
body.addObject(pocket5)
pocket5.Profile = sketch7
pocket5.Type = "ThroughAll"
pocket5.Midplane = True

# Sketch on YZ plane
sketch8 = doc.addObject("Sketcher::SketchObject", "Sketch007")
body.addObject(sketch8)
sketch8.AttachmentSupport = (doc.YZ_Plane, [""])
sketch8.MapMode = "FlatFace"
sketch8.AttachmentOffset = App.Placement(V(0, 0, -5), App.Rotation())
sketch8.addGeometry(Part.LineSegment(V(2, -3.914214, 0), V(2, -3, 0)), False)
sketch8.addGeometry(Part.LineSegment(V(2, -3, 0), V(1.085786, -3, 0)), False)
sketch8.addGeometry(Part.ArcOfCircle(Part.Circle(V(2.5, -2.5, 0), V(0, 0, 1), 1.5), math.radians(-180), math.radians(-160.528779)), False)
sketch8.addGeometry(Part.ArcOfCircle(Part.Circle(V(2.5, -2.5, 0), V(0, 0, 1), 1.5), math.radians(160.528779), math.radians(180)), False)
sketch8.addGeometry(Part.LineSegment(V(1.085786, -2, 0), V(2, -2, 0)), False)
sketch8.addGeometry(Part.LineSegment(V(2, -2, 0), V(2, -1.085786, 0)), False)
sketch8.addGeometry(Part.ArcOfCircle(Part.Circle(V(2.5, -2.5, 0), V(0, 0, 1), 1.5), math.radians(90), math.radians(109.471221)), False)
sketch8.addGeometry(Part.ArcOfCircle(Part.Circle(V(2.5, -2.5, 0), V(0, 0, 1), 1.5), math.radians(70.528779), math.radians(90)), False)
sketch8.addGeometry(Part.LineSegment(V(3, -1.085786, 0), V(3, -2, 0)), False)
sketch8.addGeometry(Part.LineSegment(V(3, -2, 0), V(3.914214, -2, 0)), False)
sketch8.addGeometry(Part.ArcOfCircle(Part.Circle(V(2.5, -2.5, 0), V(0, 0, 1), 1.5), math.radians(0), math.radians(19.471221)), False)
sketch8.addGeometry(Part.ArcOfCircle(Part.Circle(V(2.5, -2.5, 0), V(0, 0, 1), 1.5), math.radians(-19.471221), math.radians(0)), False)
sketch8.addGeometry(Part.LineSegment(V(3.914214, -3, 0), V(3, -3, 0)), False)
sketch8.addGeometry(Part.LineSegment(V(3, -3, 0), V(3, -3.914214, 0)), False)
sketch8.addGeometry(Part.ArcOfCircle(Part.Circle(V(2.5, -2.5, 0), V(0, 0, 1), 1.5), math.radians(-90), math.radians(-70.528779)), False)
sketch8.addGeometry(Part.ArcOfCircle(Part.Circle(V(2.5, -2.5, 0), V(0, 0, 1), 1.5), math.radians(-109.471221), math.radians(-90)), False)
sketch8.addConstraint(Sketcher.Constraint("Coincident", 0, 2, 1, 1))
sketch8.addConstraint(Sketcher.Constraint("Coincident", 1, 2, 2, 2))
sketch8.addConstraint(Sketcher.Constraint("Tangent", 2, 1, 3, 2))
sketch8.addConstraint(Sketcher.Constraint("Coincident", 3, 1, 4, 1))
sketch8.addConstraint(Sketcher.Constraint("Coincident", 4, 2, 5, 1))
sketch8.addConstraint(Sketcher.Constraint("Coincident", 5, 2, 6, 2))
sketch8.addConstraint(Sketcher.Constraint("Tangent", 6, 1, 7, 2))
sketch8.addConstraint(Sketcher.Constraint("Coincident", 7, 1, 8, 1))
sketch8.addConstraint(Sketcher.Constraint("Coincident", 8, 2, 9, 1))
sketch8.addConstraint(Sketcher.Constraint("Coincident", 9, 2, 10, 2))
sketch8.addConstraint(Sketcher.Constraint("Tangent", 10, 1, 11, 2))
sketch8.addConstraint(Sketcher.Constraint("Coincident", 11, 1, 12, 1))
sketch8.addConstraint(Sketcher.Constraint("Coincident", 12, 2, 13, 1))
sketch8.addConstraint(Sketcher.Constraint("Coincident", 13, 2, 14, 2))
sketch8.addConstraint(Sketcher.Constraint("Tangent", 14, 1, 15, 2))
sketch8.addConstraint(Sketcher.Constraint("Coincident", 15, 1, 0, 1))
sketch8.addConstraint(Sketcher.Constraint("Vertical", 0))
sketch8.addConstraint(Sketcher.Constraint("Horizontal", 1))
sketch8.addConstraint(Sketcher.Constraint("Horizontal", 4))
sketch8.addConstraint(Sketcher.Constraint("Vertical", 5))
sketch8.addConstraint(Sketcher.Constraint("Vertical", 8))
sketch8.addConstraint(Sketcher.Constraint("Horizontal", 9))
sketch8.addConstraint(Sketcher.Constraint("Horizontal", 12))
sketch8.addConstraint(Sketcher.Constraint("Vertical", 13))
sketch8.addConstraint(Sketcher.Constraint("Coincident", 6, 3, 2, 3))
sketch8.addConstraint(Sketcher.Constraint("Coincident", 10, 3, 2, 3))
sketch8.addConstraint(Sketcher.Constraint("Coincident", 14, 3, 2, 3))
sketch8.addConstraint(Sketcher.Constraint("Equal", 2, 3))
sketch8.addConstraint(Sketcher.Constraint("Equal", 3, 6))
sketch8.addConstraint(Sketcher.Constraint("Equal", 6, 7))
sketch8.addConstraint(Sketcher.Constraint("Equal", 7, 10))
sketch8.addConstraint(Sketcher.Constraint("Equal", 10, 11))
sketch8.addConstraint(Sketcher.Constraint("Equal", 11, 14))
sketch8.addConstraint(Sketcher.Constraint("Equal", 14, 15))
sketch8.addConstraint(Sketcher.Constraint("Horizontal", 15, 3, 2, 1))
sketch8.addConstraint(Sketcher.Constraint("Horizontal", 5, 2, 7, 1))
sketch8.addConstraint(Sketcher.Constraint("Horizontal", 4, 2, 8, 2))
sketch8.addConstraint(Sketcher.Constraint("Horizontal", 2, 1, 10, 1))
sketch8.addConstraint(Sketcher.Constraint("Horizontal", 1, 2, 11, 1))
sketch8.addConstraint(Sketcher.Constraint("Horizontal", 13, 2, 15, 1))
sketch8.addConstraint(Sketcher.Constraint("Vertical", 1, 2, 3, 1))
sketch8.addConstraint(Sketcher.Constraint("Vertical", 0, 2, 4, 2))
sketch8.addConstraint(Sketcher.Constraint("Vertical", 15, 3, 6, 1))
sketch8.addConstraint(Sketcher.Constraint("Vertical", 6, 1, 14, 1))
sketch8.addConstraint(Sketcher.Constraint("Equal", 12, 0))
sketch8.addConstraint(Sketcher.Constraint("Radius", 2, 1.5))
sketch8.addConstraint(Sketcher.Constraint("DistanceX", -1, 1, 0, 2, 2.0))
sketch8.addConstraint(Sketcher.Constraint("DistanceY", 0, 2, -1, 1, 3.0))
sketch8.addConstraint(Sketcher.Constraint("DistanceX", -1, 1, 2, 1, 1.0))
pocket6 = doc.addObject("PartDesign::Pocket", "Pocket005")
body.addObject(pocket6)
pocket6.Profile = sketch8
pocket6.Length = 10
pocket6.Reversed = True

# Sketch on XZ plane
sketch9 = doc.addObject("Sketcher::SketchObject", "Sketch008")
body.addObject(sketch9)
sketch9.AttachmentSupport = (doc.XZ_Plane, [""])
sketch9.MapMode = "FlatFace"
sketch9.AttachmentOffset = App.Placement(V(0, 0, -5), App.Rotation())
add_polygon(sketch9, [(0.5, -4), (0.5, -1), (4, -1), (4, -4)])  # lines 0-3
add_polygon(sketch9, [(-4, -4), (-4, -1), (-0.5, -1), (-0.5, -4)])  # lines 4-7
sketch9.addConstraint(Sketcher.Constraint("Vertical", 0))
sketch9.addConstraint(Sketcher.Constraint("Horizontal", 1))
sketch9.addConstraint(Sketcher.Constraint("Vertical", 2))
sketch9.addConstraint(Sketcher.Constraint("Horizontal", 3))
sketch9.addConstraint(Sketcher.Constraint("Vertical", 4))
sketch9.addConstraint(Sketcher.Constraint("Horizontal", 5))
sketch9.addConstraint(Sketcher.Constraint("Vertical", 6))
sketch9.addConstraint(Sketcher.Constraint("Horizontal", 7))
sketch9.addConstraint(Sketcher.Constraint("Symmetric", 1, 2, 4, 2, -2))
sketch9.addConstraint(Sketcher.Constraint("Symmetric", 3, 2, 6, 2, -2))
sketch9.addConstraint(Sketcher.Constraint("DistanceY", 0, 1, 0, 2, 3.0))
sketch9.addConstraint(Sketcher.Constraint("DistanceX", 1, 1, 1, 2, 3.5))
sketch9.addConstraint(Sketcher.Constraint("DistanceY", 0, 2, -1, 1, 1.0))
sketch9.addConstraint(Sketcher.Constraint("DistanceX", -1, 1, 1, 2, 4.0))
pocket7 = doc.addObject("PartDesign::Pocket", "Pocket006")
body.addObject(pocket7)
pocket7.Profile = sketch9
pocket7.Length = 1.1
pocket7.Reversed = True

# Sketch on XZ plane
sketch10 = doc.addObject("Sketcher::SketchObject", "Sketch009")
body.addObject(sketch10)
sketch10.AttachmentSupport = (doc.XZ_Plane, [""])
sketch10.MapMode = "FlatFace"
add_polygon(sketch10, [(4, -4), (4, -1), (0.5, -1), (0.5, -4)])  # lines 0-3
add_polygon(sketch10, [(-0.5, -4), (-0.5, -1), (-4, -1), (-4, -4)])  # lines 4-7
sketch10.addConstraint(Sketcher.Constraint("Vertical", 0))
sketch10.addConstraint(Sketcher.Constraint("Horizontal", 1))
sketch10.addConstraint(Sketcher.Constraint("Vertical", 2))
sketch10.addConstraint(Sketcher.Constraint("Horizontal", 3))
sketch10.addConstraint(Sketcher.Constraint("Vertical", 4))
sketch10.addConstraint(Sketcher.Constraint("Horizontal", 5))
sketch10.addConstraint(Sketcher.Constraint("Vertical", 6))
sketch10.addConstraint(Sketcher.Constraint("Horizontal", 7))
sketch10.addConstraint(Sketcher.Constraint("Symmetric", 1, 2, 4, 2, -2))
sketch10.addConstraint(Sketcher.Constraint("Symmetric", 3, 2, 6, 2, -2))
sketch10.addConstraint(Sketcher.Constraint("DistanceY", 0, 1, 0, 2, 3.0))
sketch10.addConstraint(Sketcher.Constraint("DistanceX", 1, 2, 1, 1, 3.5))
sketch10.addConstraint(Sketcher.Constraint("DistanceX", -1, 1, 0, 2, 4.0))
sketch10.addConstraint(Sketcher.Constraint("DistanceY", 0, 2, -1, 1, 1.0))
pocket8 = doc.addObject("PartDesign::Pocket", "Pocket007")
body.addObject(pocket8)
pocket8.Profile = sketch10
pocket8.Length = 1.1

doc.recompute()
